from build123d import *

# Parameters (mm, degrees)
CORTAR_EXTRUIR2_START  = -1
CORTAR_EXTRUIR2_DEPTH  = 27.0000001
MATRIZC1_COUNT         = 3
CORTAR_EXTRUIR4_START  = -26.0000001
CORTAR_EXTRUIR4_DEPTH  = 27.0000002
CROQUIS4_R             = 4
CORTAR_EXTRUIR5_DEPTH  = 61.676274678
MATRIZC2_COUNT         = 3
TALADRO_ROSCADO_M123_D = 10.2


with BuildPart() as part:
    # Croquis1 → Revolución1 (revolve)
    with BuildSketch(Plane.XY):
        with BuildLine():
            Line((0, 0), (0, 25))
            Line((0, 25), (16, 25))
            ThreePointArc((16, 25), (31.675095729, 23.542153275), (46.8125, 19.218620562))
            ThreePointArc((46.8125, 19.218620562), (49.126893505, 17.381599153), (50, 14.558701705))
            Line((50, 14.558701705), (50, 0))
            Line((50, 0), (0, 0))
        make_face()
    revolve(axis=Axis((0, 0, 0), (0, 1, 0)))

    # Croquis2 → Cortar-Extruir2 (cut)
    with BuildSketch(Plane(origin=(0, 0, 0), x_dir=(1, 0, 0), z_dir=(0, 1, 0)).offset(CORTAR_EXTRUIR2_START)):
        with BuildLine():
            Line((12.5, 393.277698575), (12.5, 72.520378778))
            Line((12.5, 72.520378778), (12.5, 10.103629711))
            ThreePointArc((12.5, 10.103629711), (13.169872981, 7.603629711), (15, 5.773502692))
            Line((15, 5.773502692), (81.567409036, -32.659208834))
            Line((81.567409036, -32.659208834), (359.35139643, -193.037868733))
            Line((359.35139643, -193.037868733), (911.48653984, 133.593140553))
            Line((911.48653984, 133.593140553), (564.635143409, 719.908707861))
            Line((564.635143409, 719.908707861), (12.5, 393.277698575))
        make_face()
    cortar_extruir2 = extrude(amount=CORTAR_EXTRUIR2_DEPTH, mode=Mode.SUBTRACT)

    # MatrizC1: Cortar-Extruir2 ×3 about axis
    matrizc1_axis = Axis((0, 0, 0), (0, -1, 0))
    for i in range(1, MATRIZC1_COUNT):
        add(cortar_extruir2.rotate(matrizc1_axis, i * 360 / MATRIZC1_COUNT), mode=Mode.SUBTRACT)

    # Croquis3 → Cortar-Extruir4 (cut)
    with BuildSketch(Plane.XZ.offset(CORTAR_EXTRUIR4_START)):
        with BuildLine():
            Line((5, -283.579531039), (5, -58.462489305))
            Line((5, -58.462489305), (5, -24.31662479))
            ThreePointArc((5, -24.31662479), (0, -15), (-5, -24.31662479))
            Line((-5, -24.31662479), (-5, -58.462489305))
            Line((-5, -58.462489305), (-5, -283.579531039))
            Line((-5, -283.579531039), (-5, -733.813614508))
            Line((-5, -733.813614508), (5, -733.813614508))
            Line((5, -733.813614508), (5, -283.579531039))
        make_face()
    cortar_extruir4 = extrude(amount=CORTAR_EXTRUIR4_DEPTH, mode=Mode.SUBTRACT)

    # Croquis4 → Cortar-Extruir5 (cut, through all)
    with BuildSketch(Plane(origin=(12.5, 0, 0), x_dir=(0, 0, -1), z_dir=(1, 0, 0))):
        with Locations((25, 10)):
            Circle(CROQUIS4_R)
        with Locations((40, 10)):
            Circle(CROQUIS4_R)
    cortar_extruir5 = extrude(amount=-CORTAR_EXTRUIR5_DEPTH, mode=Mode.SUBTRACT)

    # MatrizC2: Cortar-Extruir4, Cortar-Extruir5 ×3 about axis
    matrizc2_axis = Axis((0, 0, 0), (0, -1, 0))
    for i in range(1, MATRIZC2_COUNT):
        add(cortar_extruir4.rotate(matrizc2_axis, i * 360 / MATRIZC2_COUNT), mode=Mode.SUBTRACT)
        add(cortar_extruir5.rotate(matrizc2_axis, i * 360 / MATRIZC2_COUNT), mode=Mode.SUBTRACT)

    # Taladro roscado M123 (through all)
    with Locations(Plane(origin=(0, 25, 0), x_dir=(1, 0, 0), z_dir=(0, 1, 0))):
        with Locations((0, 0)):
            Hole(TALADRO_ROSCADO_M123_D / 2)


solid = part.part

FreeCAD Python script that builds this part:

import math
import FreeCAD as App
import Part
import Sketcher
from FreeCAD import Vector
Q = App.Units.Quantity

doc = App.newDocument("Part")
body = doc.addObject("PartDesign::Body", "Body")

# Sketch on XY plane
sketch1 = body.newObject("Sketcher::SketchObject", "Sketch")
sketch1.AttachmentSupport = (doc.getObject("XY_Plane"), [""])
sketch1.MapMode = "FlatFace"
sketch1.addGeometry(Part.LineSegment(Vector(0, 25, 0), Vector(0, 0, 0)), False)
sketch1.addGeometry(Part.LineSegment(Vector(0, 0, 0), Vector(50, 0, 0)), False)
sketch1.addGeometry(Part.LineSegment(Vector(50, 0, 0), Vector(50, 14.6, 0)), False)
sketch1.addGeometry(Part.ArcOfCircle(Part.Circle(Vector(45, 14.6, 0), Vector(0, 0, 1), 5), math.radians(0), math.radians(69)), False)
sketch1.addGeometry(Part.ArcOfCircle(Part.Circle(Vector(16, -60, 0), Vector(0, 0, 1), 85), math.radians(69), math.radians(90)), False)
sketch1.addGeometry(Part.LineSegment(Vector(16, 25, 0), Vector(0, 25, 0)), False)
sketch1.addConstraint(Sketcher.Constraint("Coincident", 0, 2, 1, 1))
sketch1.addConstraint(Sketcher.Constraint("Coincident", 1, 2, 2, 1))
sketch1.addConstraint(Sketcher.Constraint("Tangent", 2, 2, 3, 1))
sketch1.addConstraint(Sketcher.Constraint("Tangent", 3, 2, 4, 1))
sketch1.addConstraint(Sketcher.Constraint("Tangent", 4, 2, 5, 1))
sketch1.addConstraint(Sketcher.Constraint("Coincident", 5, 2, 0, 1))
sketch1.addConstraint(Sketcher.Constraint("Vertical", 0))
sketch1.addConstraint(Sketcher.Constraint("Horizontal", 1))
sketch1.addConstraint(Sketcher.Constraint("Vertical", 2))
sketch1.addConstraint(Sketcher.Constraint("Horizontal", 5))
sketch1.addConstraint(Sketcher.Constraint("Coincident", 0, 2, -1, 1))
sketch1.addConstraint(Sketcher.Constraint("Radius", 3, Q("5 mm")))
sketch1.addConstraint(Sketcher.Constraint("Radius", 4, Q("85 mm")))
sketch1.addConstraint(Sketcher.Constraint("DistanceX", 1, 1, 1, 2, Q("50 mm")))
sketch1.addConstraint(Sketcher.Constraint("DistanceX", 5, 2, 5, 1, Q("16 mm")))
sketch1.addConstraint(Sketcher.Constraint("DistanceY", 0, 2, 0, 1, Q("25 mm")))
revolution = body.newObject("PartDesign::Revolution", "Revolution")
revolution.Profile = sketch1
revolution.ReferenceAxis = (sketch1, ["V_Axis"])
revolution.Angle = 360

# Sketch on XZ plane
sketch2 = body.newObject("Sketcher::SketchObject", "Sketch001")
sketch2.AttachmentSupport = (doc.getObject("XZ_Plane"), [""])
sketch2.MapMode = "FlatFace"
sketch2.AttachmentOffset = App.Placement(Vector(0, 0, 1), App.Rotation())
sketch2.addGeometry(Part.LineSegment(Vector(12, -393, 0), Vector(12, -10, 0)), False)
sketch2.addGeometry(Part.ArcOfCircle(Part.Circle(Vector(18, -10, 0), Vector(0, 0, 1), 5), math.radians(120), math.radians(180)), False)
sketch2.addGeometry(Part.LineSegment(Vector(15, -6, 0), Vector(82, 33, 0)), False)
sketch2.addGeometry(Part.LineSegment(Vector(82, 33, 0), Vector(359, 193, 0)), False)
sketch2.addGeometry(Part.LineSegment(Vector(359, 193, 0), Vector(911, -134, 0)), False)
sketch2.addGeometry(Part.LineSegment(Vector(911, -134, 0), Vector(565, -720, 0)), False)
sketch2.addGeometry(Part.LineSegment(Vector(565, -720, 0), Vector(12, -393, 0)), False)
sketch2.addConstraint(Sketcher.Constraint("Tangent", 0, 2, 1, 2))
sketch2.addConstraint(Sketcher.Constraint("Tangent", 1, 1, 2, 1))
sketch2.addConstraint(Sketcher.Constraint("Coincident", 2, 2, 3, 1))
sketch2.addConstraint(Sketcher.Constraint("Coincident", 3, 2, 4, 1))
sketch2.addConstraint(Sketcher.Constraint("Coincident", 4, 2, 5, 1))
sketch2.addConstraint(Sketcher.Constraint("Coincident", 5, 2, 6, 1))
sketch2.addConstraint(Sketcher.Constraint("Coincident", 6, 2, 0, 1))
sketch2.addConstraint(Sketcher.Constraint("Vertical", 0))
sketch2.addConstraint(Sketcher.Constraint("Parallel", 2, 3))
sketch2.addConstraint(Sketcher.Constraint("Perpendicular", 4, 5))
sketch2.addConstraint(Sketcher.Constraint("Perpendicular", 5, 6))
sketch2.addConstraint(Sketcher.Constraint("Equal", 4, 6))
sketch2.addConstraint(Sketcher.Constraint("Radius", 1, Q("5 mm")))
sketch2.addConstraint(Sketcher.Constraint("Angle", 2, Q("30 deg")))
sketch2.addConstraint(Sketcher.Constraint("DistanceX", -1, 1, 1, 1, Q("15 mm")))
sketch2.addConstraint(Sketcher.Constraint("DistanceY", 0, 1, 0, 2, Q("383.174069 mm")))
sketch2.addConstraint(Sketcher.Constraint("DistanceY", 6, 2, -1, 1, Q("393.277699 mm")))
sketch2.addConstraint(Sketcher.Constraint("DistanceY", 1, 3, 3, 2, Q("203.141498 mm")))
sketch2.addConstraint(Sketcher.Constraint("Distance", 3, Q("320.75732 mm")))
sketch2.addConstraint(Sketcher.Constraint("Distance", 4, Q("641.51464 mm")))
pocket1 = body.newObject("PartDesign::Pocket", "Pocket")
pocket1.Profile = sketch2
pocket1.Length = 27
doc.recompute()

polarpattern = body.newObject("PartDesign::PolarPattern", "PolarPattern")
polarpattern.Originals = [pocket1]
polarpattern.Axis = (doc.getObject("Y_Axis"), [""])
polarpattern.Angle = 360
polarpattern.Occurrences = 3
body.Tip = polarpattern

# Sketch on XZ plane
sketch3 = body.newObject("Sketcher::SketchObject", "Sketch002")
sketch3.AttachmentSupport = (doc.getObject("XZ_Plane"), [""])
sketch3.MapMode = "FlatFace"
sketch3.AttachmentOffset = App.Placement(Vector(0, 0, -26), App.Rotation())
sketch3.addGeometry(Part.ArcOfCircle(Part.Circle(Vector(0, -21, 0), Vector(0, 0, 1), 6), math.radians(-34), math.radians(214)), False)
sketch3.addGeometry(Part.LineSegment(Vector(-5, -24, 0), Vector(-5, -734, 0)), False)
sketch3.addGeometry(Part.LineSegment(Vector(-5, -734, 0), Vector(5, -734, 0)), False)
sketch3.addGeometry(Part.LineSegment(Vector(5, -734, 0), Vector(5, -24, 0)), False)
sketch3.addConstraint(Sketcher.Constraint("Coincident", 0, 2, 1, 1))
sketch3.addConstraint(Sketcher.Constraint("Coincident", 1, 2, 2, 1))
sketch3.addConstraint(Sketcher.Constraint("Coincident", 2, 2, 3, 1))
sketch3.addConstraint(Sketcher.Constraint("Coincident", 3, 2, 0, 1))
sketch3.addConstraint(Sketcher.Constraint("Vertical", 1))
sketch3.addConstraint(Sketcher.Constraint("Horizontal", 2))
sketch3.addConstraint(Sketcher.Constraint("Vertical", 3))
sketch3.addConstraint(Sketcher.Constraint("Symmetric", 0, 2, 3, 2, -2))
sketch3.addConstraint(Sketcher.Constraint("Radius", 0, Q("6 mm")))
sketch3.addConstraint(Sketcher.Constraint("DistanceX", 2, 1, 2, 2, Q("10 mm")))
sketch3.addConstraint(Sketcher.Constraint("DistanceY", 0, 3, -1, 1, Q("21 mm")))
sketch3.addConstraint(Sketcher.Constraint("DistanceY", 1, 2, 1, 1, Q("709.49699 mm")))
pocket2 = body.newObject("PartDesign::Pocket", "Pocket001")
pocket2.Profile = sketch3
pocket2.Length = 27
pocket2.Reversed = True

# Sketch on YZ plane
sketch4 = body.newObject("Sketcher::SketchObject", "Sketch003")
sketch4.AttachmentSupport = (doc.getObject("YZ_Plane"), [""])
sketch4.MapMode = "FlatFace"
sketch4.AttachmentOffset = App.Placement(Vector(0, 0, 12.5), App.Rotation())
sketch4.addGeometry(Part.Circle(Vector(10, -25, 0), Vector(0, 0, 1), 4), False)
sketch4.addGeometry(Part.Circle(Vector(10, -40, 0), Vector(0, 0, 1), 4), False)
sketch4.addConstraint(Sketcher.Constraint("Equal", 0, 1))
sketch4.addConstraint(Sketcher.Constraint("Vertical", 0, 3, 1, 3))
sketch4.addConstraint(Sketcher.Constraint("Diameter", 0, Q("8 mm")))
sketch4.addConstraint(Sketcher.Constraint("DistanceX", -1, 1, 0, 3, Q("10 mm")))
sketch4.addConstraint(Sketcher.Constraint("DistanceY", 0, 3, -1, 1, Q("25 mm")))
sketch4.addConstraint(Sketcher.Constraint("DistanceY", 1, 3, -1, 1, Q("40 mm")))
pocket3 = body.newObject("PartDesign::Pocket", "Pocket002")
pocket3.Profile = sketch4
pocket3.Type = "ThroughAll"
doc.recompute()

polarpattern2 = body.newObject("PartDesign::PolarPattern", "PolarPattern001")
polarpattern2.Originals = [pocket2, pocket3]
polarpattern2.Axis = (doc.getObject("Y_Axis"), [""])
polarpattern2.Angle = 360
polarpattern2.Occurrences = 3
body.Tip = polarpattern2

# Sketch on XZ plane
sketch5 = body.newObject("Sketcher::SketchObject", "Sketch004")
sketch5.AttachmentSupport = (doc.getObject("XZ_Plane"), [""])
sketch5.MapMode = "FlatFace"
sketch5.AttachmentOffset = App.Placement(Vector(0, 0, -25), App.Rotation())
sketch5.addGeometry(Part.Circle(Vector(0, 0, 0), Vector(0, 0, 1), 5), False)
sketch5.addConstraint(Sketcher.Constraint("Coincident", 0, 3, -1, 1))
sketch5.addConstraint(Sketcher.Constraint("Diameter", 0, Q("10.2 mm")))
doc.recompute()
hole = body.newObject("PartDesign::Hole", "Hole")
hole.Profile = sketch5
hole.ThreadType = "None"
hole.Diameter = 10.2
hole.DepthType = "ThroughAll"
hole.Reversed = True

doc.recompute()
